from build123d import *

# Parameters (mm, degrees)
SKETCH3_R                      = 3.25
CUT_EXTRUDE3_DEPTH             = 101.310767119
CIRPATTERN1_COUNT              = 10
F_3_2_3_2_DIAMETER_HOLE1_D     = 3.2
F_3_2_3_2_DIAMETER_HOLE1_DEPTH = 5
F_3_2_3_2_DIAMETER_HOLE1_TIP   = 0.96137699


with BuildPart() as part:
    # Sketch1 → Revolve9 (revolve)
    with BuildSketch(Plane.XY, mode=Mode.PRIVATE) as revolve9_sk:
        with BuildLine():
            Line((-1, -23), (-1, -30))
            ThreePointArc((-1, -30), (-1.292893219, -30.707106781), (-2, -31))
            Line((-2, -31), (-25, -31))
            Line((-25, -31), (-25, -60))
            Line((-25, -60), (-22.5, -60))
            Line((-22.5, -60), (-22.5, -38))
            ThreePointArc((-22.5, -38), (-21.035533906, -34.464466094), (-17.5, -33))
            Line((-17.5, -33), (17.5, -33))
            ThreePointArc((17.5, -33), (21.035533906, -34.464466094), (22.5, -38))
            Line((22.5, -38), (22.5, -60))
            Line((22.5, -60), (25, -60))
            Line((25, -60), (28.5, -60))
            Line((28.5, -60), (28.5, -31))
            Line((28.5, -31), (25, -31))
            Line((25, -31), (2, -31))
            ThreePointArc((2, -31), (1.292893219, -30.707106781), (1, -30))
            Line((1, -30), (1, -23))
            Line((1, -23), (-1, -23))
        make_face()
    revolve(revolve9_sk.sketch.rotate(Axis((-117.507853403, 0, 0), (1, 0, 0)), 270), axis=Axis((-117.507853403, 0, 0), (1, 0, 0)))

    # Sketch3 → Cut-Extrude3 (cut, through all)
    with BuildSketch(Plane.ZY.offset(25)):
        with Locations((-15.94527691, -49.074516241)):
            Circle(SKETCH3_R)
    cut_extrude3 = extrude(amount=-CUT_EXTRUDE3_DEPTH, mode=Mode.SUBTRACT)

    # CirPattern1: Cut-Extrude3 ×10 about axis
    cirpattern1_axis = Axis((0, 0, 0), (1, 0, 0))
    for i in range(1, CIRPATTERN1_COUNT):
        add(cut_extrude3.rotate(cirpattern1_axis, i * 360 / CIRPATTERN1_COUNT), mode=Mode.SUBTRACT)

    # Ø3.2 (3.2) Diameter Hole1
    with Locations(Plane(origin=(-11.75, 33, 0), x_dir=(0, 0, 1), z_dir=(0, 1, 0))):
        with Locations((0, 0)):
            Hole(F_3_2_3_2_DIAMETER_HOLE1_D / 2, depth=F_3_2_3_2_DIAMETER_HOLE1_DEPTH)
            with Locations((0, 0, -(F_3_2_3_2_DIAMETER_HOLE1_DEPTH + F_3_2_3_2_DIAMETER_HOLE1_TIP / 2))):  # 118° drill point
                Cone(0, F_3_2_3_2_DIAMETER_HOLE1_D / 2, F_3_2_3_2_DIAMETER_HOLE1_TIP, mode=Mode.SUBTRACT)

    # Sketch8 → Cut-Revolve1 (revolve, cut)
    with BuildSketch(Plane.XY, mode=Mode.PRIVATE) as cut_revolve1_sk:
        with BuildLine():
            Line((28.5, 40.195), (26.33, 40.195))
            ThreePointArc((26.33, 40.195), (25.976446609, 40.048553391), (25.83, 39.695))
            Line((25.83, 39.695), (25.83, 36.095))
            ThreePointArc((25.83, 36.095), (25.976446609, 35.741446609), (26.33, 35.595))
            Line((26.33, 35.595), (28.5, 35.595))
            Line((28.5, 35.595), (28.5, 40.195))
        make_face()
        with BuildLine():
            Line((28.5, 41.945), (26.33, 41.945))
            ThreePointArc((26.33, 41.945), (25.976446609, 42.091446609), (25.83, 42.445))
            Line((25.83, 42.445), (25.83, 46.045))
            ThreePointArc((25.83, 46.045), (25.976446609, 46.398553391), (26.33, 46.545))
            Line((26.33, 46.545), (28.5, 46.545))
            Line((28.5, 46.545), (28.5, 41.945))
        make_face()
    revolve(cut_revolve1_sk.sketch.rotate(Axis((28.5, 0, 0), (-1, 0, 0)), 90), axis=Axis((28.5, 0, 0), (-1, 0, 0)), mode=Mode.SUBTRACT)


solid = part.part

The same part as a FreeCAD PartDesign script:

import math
import FreeCAD as App
import Part
import Sketcher
Q = App.Units.Quantity

doc = App.newDocument("Part")
body = doc.addObject("PartDesign::Body", "Body")

# Sketch on XY plane
sketch1 = body.newObject("Sketcher::SketchObject", "Sketch")
sketch1.AttachmentSupport = (doc.getObject("XY_Plane"), [""])
sketch1.MapMode = "FlatFace"
sketch1.addGeometry(Part.LineSegment(App.Vector(-1, -23, 0), App.Vector(-1, -30, 0)), False)
sketch1.addGeometry(Part.ArcOfCircle(Part.Circle(App.Vector(-2, -30, 0), App.Vector(0, 0, 1), 1), math.radians(-90), math.radians(0)), False)
sketch1.addGeometry(Part.LineSegment(App.Vector(-2, -31, 0), App.Vector(-25, -31, 0)), False)
sketch1.addGeometry(Part.LineSegment(App.Vector(-25, -31, 0), App.Vector(-25, -60, 0)), False)
sketch1.addGeometry(Part.LineSegment(App.Vector(-25, -60, 0), App.Vector(-22.5, -60, 0)), False)
sketch1.addGeometry(Part.LineSegment(App.Vector(-22.5, -60, 0), App.Vector(-22.5, -38, 0)), False)
sketch1.addGeometry(Part.ArcOfCircle(Part.Circle(App.Vector(-17.5, -38, 0), App.Vector(0, 0, 1), 5), math.radians(90), math.radians(180)), False)
sketch1.addGeometry(Part.LineSegment(App.Vector(-17.5, -33, 0), App.Vector(17.5, -33, 0)), False)
sketch1.addGeometry(Part.ArcOfCircle(Part.Circle(App.Vector(17.5, -38, 0), App.Vector(0, 0, 1), 5), math.radians(0), math.radians(90)), False)
sketch1.addGeometry(Part.LineSegment(App.Vector(22.5, -38, 0), App.Vector(22.5, -60, 0)), False)
sketch1.addGeometry(Part.LineSegment(App.Vector(22.5, -60, 0), App.Vector(28.5, -60, 0)), False)
sketch1.addGeometry(Part.LineSegment(App.Vector(28.5, -60, 0), App.Vector(28.5, -31, 0)), False)
sketch1.addGeometry(Part.LineSegment(App.Vector(28.5, -31, 0), App.Vector(2, -31, 0)), False)
sketch1.addGeometry(Part.ArcOfCircle(Part.Circle(App.Vector(2, -30, 0), App.Vector(0, 0, 1), 1), math.radians(-180), math.radians(-90)), False)
sketch1.addGeometry(Part.LineSegment(App.Vector(1, -30, 0), App.Vector(1, -23, 0)), False)
sketch1.addGeometry(Part.LineSegment(App.Vector(1, -23, 0), App.Vector(-1, -23, 0)), False)
sketch1.addConstraint(Sketcher.Constraint("Tangent", 0, 2, 1, 2))
sketch1.addConstraint(Sketcher.Constraint("Tangent", 1, 1, 2, 1))
sketch1.addConstraint(Sketcher.Constraint("Coincident", 2, 2, 3, 1))
sketch1.addConstraint(Sketcher.Constraint("Coincident", 3, 2, 4, 1))
sketch1.addConstraint(Sketcher.Constraint("Coincident", 4, 2, 5, 1))
sketch1.addConstraint(Sketcher.Constraint("Tangent", 5, 2, 6, 2))
sketch1.addConstraint(Sketcher.Constraint("Tangent", 6, 1, 7, 1))
sketch1.addConstraint(Sketcher.Constraint("Tangent", 7, 2, 8, 2))
sketch1.addConstraint(Sketcher.Constraint("Tangent", 8, 1, 9, 1))
sketch1.addConstraint(Sketcher.Constraint("Coincident", 9, 2, 10, 1))
sketch1.addConstraint(Sketcher.Constraint("Coincident", 10, 2, 11, 1))
sketch1.addConstraint(Sketcher.Constraint("Coincident", 11, 2, 12, 1))
sketch1.addConstraint(Sketcher.Constraint("Tangent", 12, 2, 13, 2))
sketch1.addConstraint(Sketcher.Constraint("Tangent", 13, 1, 14, 1))
sketch1.addConstraint(Sketcher.Constraint("Coincident", 14, 2, 15, 1))
sketch1.addConstraint(Sketcher.Constraint("Coincident", 15, 2, 0, 1))
sketch1.addConstraint(Sketcher.Constraint("Vertical", 0))
sketch1.addConstraint(Sketcher.Constraint("Horizontal", 2))
sketch1.addConstraint(Sketcher.Constraint("Vertical", 3))
sketch1.addConstraint(Sketcher.Constraint("Horizontal", 4))
sketch1.addConstraint(Sketcher.Constraint("Vertical", 5))
sketch1.addConstraint(Sketcher.Constraint("Horizontal", 7))
sketch1.addConstraint(Sketcher.Constraint("Vertical", 9))
sketch1.addConstraint(Sketcher.Constraint("Horizontal", 10))
sketch1.addConstraint(Sketcher.Constraint("Vertical", 11))
sketch1.addConstraint(Sketcher.Constraint("Horizontal", 12))
sketch1.addConstraint(Sketcher.Constraint("Vertical", 14))
sketch1.addConstraint(Sketcher.Constraint("Horizontal", 15))
sketch1.addConstraint(Sketcher.Constraint("Equal", 6, 8))
sketch1.addConstraint(Sketcher.Constraint("Equal", 1, 13))
sketch1.addConstraint(Sketcher.Constraint("Symmetric", 1, 3, 13, 3, -2))
sketch1.addConstraint(Sketcher.Constraint("Symmetric", 4, 2, 9, 2, -2))
sketch1.addConstraint(Sketcher.Constraint("Radius", 1, Q("1 mm")))
sketch1.addConstraint(Sketcher.Constraint("Radius", 6, Q("5 mm")))
sketch1.addConstraint(Sketcher.Constraint("DistanceX", 2, 2, 2, 1, Q("23 mm")))
sketch1.addConstraint(Sketcher.Constraint("DistanceX", 7, 1, 7, 2, Q("35 mm")))
sketch1.addConstraint(Sketcher.Constraint("DistanceX", 10, 1, 10, 2, Q("6 mm")))
sketch1.addConstraint(Sketcher.Constraint("DistanceX", 15, 2, 15, 1, Q("2 mm")))
sketch1.addConstraint(Sketcher.Constraint("DistanceY", 0, 2, 0, 1, Q("7 mm")))
sketch1.addConstraint(Sketcher.Constraint("DistanceY", 3, 2, 3, 1, Q("29 mm")))
sketch1.addConstraint(Sketcher.Constraint("DistanceY", 5, 1, 5, 2, Q("22 mm")))
sketch1.addConstraint(Sketcher.Constraint("DistanceY", 1, 3, -1, 1, Q("30 mm")))
revolution = body.newObject("PartDesign::Revolution", "Revolution")
revolution.Profile = sketch1
revolution.ReferenceAxis = (sketch1, ["H_Axis"])
revolution.Angle = 360

# Sketch on YZ plane
sketch2 = body.newObject("Sketcher::SketchObject", "Sketch001")
sketch2.AttachmentSupport = (doc.getObject("YZ_Plane"), [""])
sketch2.MapMode = "FlatFace"
sketch2.AttachmentOffset = App.Placement(App.Vector(0, 0, -25), App.Rotation())
sketch2.addGeometry(Part.Circle(App.Vector(-49.1, -15.9, 0), App.Vector(0, 0, 1), 3.2), False)
sketch2.addConstraint(Sketcher.Constraint("Diameter", 0, Q("6.5 mm")))
sketch2.addConstraint(Sketcher.Constraint("DistanceX", 0, 3, -1, 1, Q("49.074516 mm")))
sketch2.addConstraint(Sketcher.Constraint("DistanceY", 0, 3, -1, 1, Q("15.945277 mm")))
pocket1 = body.newObject("PartDesign::Pocket", "Pocket")
pocket1.Profile = sketch2
pocket1.Type = "ThroughAll"
pocket1.Reversed = True
doc.recompute()

polarpattern = body.newObject("PartDesign::PolarPattern", "PolarPattern")
polarpattern.Originals = [pocket1]
polarpattern.Axis = (doc.getObject("X_Axis"), [""])
polarpattern.Angle = 360
polarpattern.Occurrences = 10
body.Tip = polarpattern

# Sketch on XZ plane
sketch3 = body.newObject("Sketcher::SketchObject", "Sketch002")
sketch3.AttachmentSupport = (doc.getObject("XZ_Plane"), [""])
sketch3.MapMode = "FlatFace"
sketch3.AttachmentOffset = App.Placement(App.Vector(0, 0, -33), App.Rotation())
sketch3.addGeometry(Part.Circle(App.Vector(-11.8, 0, 0), App.Vector(0, 0, 1), 1.6), False)
sketch3.addConstraint(Sketcher.Constraint("PointOnObject", 0, 3, -1))
sketch3.addConstraint(Sketcher.Constraint("Diameter", 0, Q("3.2 mm")))
sketch3.addConstraint(Sketcher.Constraint("DistanceX", 0, 3, -1, 1, Q("11.75 mm")))
doc.recompute()
hole = body.newObject("PartDesign::Hole", "Hole")
hole.Profile = sketch3
hole.ThreadType = "None"
hole.Diameter = 3.2
hole.DepthType = "Dimension"
hole.Depth = 5
hole.DrillPoint = "Angled"
hole.DrillPointAngle = 118
hole.Reversed = True

# Sketch on XY plane
sketch4 = body.newObject("Sketcher::SketchObject", "Sketch003")
sketch4.AttachmentSupport = (doc.getObject("XY_Plane"), [""])
sketch4.MapMode = "FlatFace"
sketch4.addGeometry(Part.LineSegment(App.Vector(28.5, 40.2, 0), App.Vector(26.33, 40.2, 0)), False)
sketch4.addGeometry(Part.ArcOfCircle(Part.Circle(App.Vector(26.33, 39.7, 0), App.Vector(0, 0, 1), 0.5), math.radians(90), math.radians(180)), False)
sketch4.addGeometry(Part.LineSegment(App.Vector(25.83, 39.7, 0), App.Vector(25.83, 36.09, 0)), False)
sketch4.addGeometry(Part.ArcOfCircle(Part.Circle(App.Vector(26.33, 36.09, 0), App.Vector(0, 0, 1), 0.5), math.radians(180), math.radians(270)), False)
sketch4.addGeometry(Part.LineSegment(App.Vector(26.33, 35.59, 0), App.Vector(28.5, 35.59, 0)), False)
sketch4.addGeometry(Part.LineSegment(App.Vector(28.5, 35.59, 0), App.Vector(28.5, 40.2, 0)), False)
sketch4.addGeometry(Part.LineSegment(App.Vector(26.33, 41.95, 0), App.Vector(28.5, 41.95, 0)), False)
sketch4.addGeometry(Part.LineSegment(App.Vector(28.5, 41.95, 0), App.Vector(28.5, 46.55, 0)), False)
sketch4.addGeometry(Part.LineSegment(App.Vector(28.5, 46.55, 0), App.Vector(26.33, 46.55, 0)), False)
sketch4.addGeometry(Part.ArcOfCircle(Part.Circle(App.Vector(26.33, 46.05, 0), App.Vector(0, 0, 1), 0.5), math.radians(90), math.radians(180)), False)
sketch4.addGeometry(Part.LineSegment(App.Vector(25.83, 46.05, 0), App.Vector(25.83, 42.45, 0)), False)
sketch4.addGeometry(Part.ArcOfCircle(Part.Circle(App.Vector(26.33, 42.44, 0), App.Vector(0, 0, 1), 0.5), math.radians(180), math.radians(270)), False)
sketch4.addConstraint(Sketcher.Constraint("Tangent", 0, 2, 1, 1))
sketch4.addConstraint(Sketcher.Constraint("Tangent", 1, 2, 2, 1))
sketch4.addConstraint(Sketcher.Constraint("Tangent", 2, 2, 3, 1))
sketch4.addConstraint(Sketcher.Constraint("Tangent", 3, 2, 4, 1))
sketch4.addConstraint(Sketcher.Constraint("Coincident", 4, 2, 5, 1))
sketch4.addConstraint(Sketcher.Constraint("Coincident", 5, 2, 0, 1))
sketch4.addConstraint(Sketcher.Constraint("Coincident", 6, 2, 7, 1))
sketch4.addConstraint(Sketcher.Constraint("Coincident", 7, 2, 8, 1))
sketch4.addConstraint(Sketcher.Constraint("Tangent", 8, 2, 9, 1))
sketch4.addConstraint(Sketcher.Constraint("Tangent", 9, 2, 10, 1))
sketch4.addConstraint(Sketcher.Constraint("Tangent", 10, 2, 11, 1))
sketch4.addConstraint(Sketcher.Constraint("Tangent", 11, 2, 6, 1))
sketch4.addConstraint(Sketcher.Constraint("Horizontal", 0))
sketch4.addConstraint(Sketcher.Constraint("Vertical", 2))
sketch4.addConstraint(Sketcher.Constraint("Horizontal", 4))
sketch4.addConstraint(Sketcher.Constraint("Vertical", 5))
sketch4.addConstraint(Sketcher.Constraint("Horizontal", 6))
sketch4.addConstraint(Sketcher.Constraint("Vertical", 7))
sketch4.addConstraint(Sketcher.Constraint("Horizontal", 8))
sketch4.addConstraint(Sketcher.Constraint("Vertical", 10))
sketch4.addConstraint(Sketcher.Constraint("Equal", 1, 3))
sketch4.addConstraint(Sketcher.Constraint("Equal", 3, 9))
sketch4.addConstraint(Sketcher.Constraint("Equal", 9, 11))
sketch4.addConstraint(Sketcher.Constraint("Vertical", 3, 3, 9, 3))
sketch4.addConstraint(Sketcher.Constraint("Vertical", 5, 2, 6, 2))
sketch4.addConstraint(Sketcher.Constraint("Equal", 5, 7))
sketch4.addConstraint(Sketcher.Constraint("Radius", 1, Q("0.5 mm")))
sketch4.addConstraint(Sketcher.Constraint("DistanceY", 2, 2, 2, 1, Q("3.6 mm")))
sketch4.addConstraint(Sketcher.Constraint("DistanceX", 0, 2, 0, 1, Q("2.17 mm")))
sketch4.addConstraint(Sketcher.Constraint("DistanceX", -1, 1, 4, 2, Q("28.5 mm")))
sketch4.addConstraint(Sketcher.Constraint("DistanceY", 1, 3, 9, 3, Q("6.35 mm")))
sketch4.addConstraint(Sketcher.Constraint("DistanceY", -1, 1, 1, 3, Q("39.695 mm")))
groove = body.newObject("PartDesign::Groove", "Groove")
groove.Profile = sketch4
groove.ReferenceAxis = (sketch4, ["H_Axis"])
groove.Angle = 360

doc.recompute()
